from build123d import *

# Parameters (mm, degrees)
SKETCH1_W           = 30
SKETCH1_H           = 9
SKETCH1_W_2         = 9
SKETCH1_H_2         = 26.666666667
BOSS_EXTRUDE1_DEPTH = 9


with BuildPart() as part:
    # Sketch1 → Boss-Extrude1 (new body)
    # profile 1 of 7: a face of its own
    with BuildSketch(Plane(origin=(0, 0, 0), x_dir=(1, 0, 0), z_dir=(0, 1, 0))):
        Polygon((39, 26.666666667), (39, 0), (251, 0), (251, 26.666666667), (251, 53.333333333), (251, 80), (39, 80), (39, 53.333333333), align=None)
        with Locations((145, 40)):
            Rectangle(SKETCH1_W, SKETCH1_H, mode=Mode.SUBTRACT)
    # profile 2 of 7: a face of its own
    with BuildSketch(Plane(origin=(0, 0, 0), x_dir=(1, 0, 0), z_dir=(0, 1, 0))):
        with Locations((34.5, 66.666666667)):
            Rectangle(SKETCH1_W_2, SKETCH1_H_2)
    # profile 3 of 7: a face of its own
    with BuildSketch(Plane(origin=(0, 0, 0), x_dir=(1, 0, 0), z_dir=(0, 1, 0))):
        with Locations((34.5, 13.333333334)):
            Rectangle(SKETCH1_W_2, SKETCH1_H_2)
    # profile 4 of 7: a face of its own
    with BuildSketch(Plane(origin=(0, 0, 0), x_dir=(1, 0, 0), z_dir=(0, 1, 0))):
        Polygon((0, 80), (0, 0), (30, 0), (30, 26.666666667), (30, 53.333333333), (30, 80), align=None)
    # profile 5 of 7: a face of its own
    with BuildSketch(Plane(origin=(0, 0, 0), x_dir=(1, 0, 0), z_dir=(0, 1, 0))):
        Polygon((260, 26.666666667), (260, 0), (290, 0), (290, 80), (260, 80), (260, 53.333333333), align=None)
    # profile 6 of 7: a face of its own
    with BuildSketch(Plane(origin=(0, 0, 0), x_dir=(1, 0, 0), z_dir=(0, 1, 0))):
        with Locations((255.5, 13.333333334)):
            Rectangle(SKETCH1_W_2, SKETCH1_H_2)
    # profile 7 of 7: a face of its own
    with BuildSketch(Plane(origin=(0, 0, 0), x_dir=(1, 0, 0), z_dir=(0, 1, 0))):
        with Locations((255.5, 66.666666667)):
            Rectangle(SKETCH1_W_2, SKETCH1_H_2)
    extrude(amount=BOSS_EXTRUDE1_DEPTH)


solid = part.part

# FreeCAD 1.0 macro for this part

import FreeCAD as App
import Part
import Sketcher
from FreeCAD import Vector

doc = App.newDocument("Part")
body = doc.addObject("PartDesign::Body", "Body")

# Sketch on XZ plane
sketch1 = body.newObject("Sketcher::SketchObject", "Sketch")
sketch1.AttachmentSupport = (doc.getObject("XZ_Plane"), [""])
sketch1.MapMode = "FlatFace"
sketch1.addGeometry(Part.LineSegment(Vector(39, 0, 0), Vector(290, 0, 0)), False)
sketch1.addGeometry(Part.LineSegment(Vector(290, 0, 0), Vector(290, -80, 0)), False)
sketch1.addGeometry(Part.LineSegment(Vector(290, -80, 0), Vector(260, -80, 0)), False)
sketch1.addGeometry(Part.LineSegment(Vector(260, -80, 0), Vector(251, -80, 0)), False)
sketch1.addGeometry(Part.LineSegment(Vector(251, -80, 0), Vector(39, -80, 0)), False)
sketch1.addGeometry(Part.LineSegment(Vector(39, -80, 0), Vector(30, -80, 0)), False)
sketch1.addGeometry(Part.LineSegment(Vector(30, -80, 0), Vector(0, -80, 0)), False)
sketch1.addGeometry(Part.LineSegment(Vector(0, -80, 0), Vector(0, 0, 0)), False)
sketch1.addGeometry(Part.LineSegment(Vector(0, 0, 0), Vector(30, 0, 0)), False)
sketch1.addGeometry(Part.LineSegment(Vector(30, 0, 0), Vector(39, 0, 0)), False)
sketch1.addGeometry(Part.LineSegment(Vector(39, -53, 0), Vector(39, -27, 0)), False)
sketch1.addGeometry(Part.LineSegment(Vector(39, -27, 0), Vector(30, -27, 0)), False)
sketch1.addGeometry(Part.LineSegment(Vector(30, -27, 0), Vector(30, -53, 0)), False)
sketch1.addGeometry(Part.LineSegment(Vector(30, -53, 0), Vector(39, -53, 0)), False)
sketch1.addGeometry(Part.LineSegment(Vector(251, -27, 0), Vector(251, -53, 0)), False)
sketch1.addGeometry(Part.LineSegment(Vector(251, -53, 0), Vector(260, -53, 0)), False)
sketch1.addGeometry(Part.LineSegment(Vector(260, -53, 0), Vector(260, -27, 0)), False)
sketch1.addGeometry(Part.LineSegment(Vector(260, -27, 0), Vector(251, -27, 0)), False)
sketch1.addGeometry(Part.LineSegment(Vector(160, -36, 0), Vector(130, -36, 0)), False)
sketch1.addGeometry(Part.LineSegment(Vector(130, -36, 0), Vector(130, -44, 0)), False)
sketch1.addGeometry(Part.LineSegment(Vector(130, -44, 0), Vector(160, -44, 0)), False)
sketch1.addGeometry(Part.LineSegment(Vector(160, -44, 0), Vector(160, -36, 0)), False)
sketch1.addConstraint(Sketcher.Constraint("Coincident", 0, 2, 1, 1))
sketch1.addConstraint(Sketcher.Constraint("Coincident", 1, 2, 2, 1))
sketch1.addConstraint(Sketcher.Constraint("Coincident", 2, 2, 3, 1))
sketch1.addConstraint(Sketcher.Constraint("Coincident", 3, 2, 4, 1))
sketch1.addConstraint(Sketcher.Constraint("Coincident", 4, 2, 5, 1))
sketch1.addConstraint(Sketcher.Constraint("Coincident", 5, 2, 6, 1))
sketch1.addConstraint(Sketcher.Constraint("Coincident", 6, 2, 7, 1))
sketch1.addConstraint(Sketcher.Constraint("Coincident", 7, 2, 8, 1))
sketch1.addConstraint(Sketcher.Constraint("Coincident", 8, 2, 9, 1))
sketch1.addConstraint(Sketcher.Constraint("Coincident", 9, 2, 0, 1))
sketch1.addConstraint(Sketcher.Constraint("Coincident", 10, 2, 11, 1))
sketch1.addConstraint(Sketcher.Constraint("Coincident", 11, 2, 12, 1))
sketch1.addConstraint(Sketcher.Constraint("Coincident", 12, 2, 13, 1))
sketch1.addConstraint(Sketcher.Constraint("Coincident", 13, 2, 10, 1))
sketch1.addConstraint(Sketcher.Constraint("Coincident", 14, 2, 15, 1))
sketch1.addConstraint(Sketcher.Constraint("Coincident", 15, 2, 16, 1))
sketch1.addConstraint(Sketcher.Constraint("Coincident", 16, 2, 17, 1))
sketch1.addConstraint(Sketcher.Constraint("Coincident", 17, 2, 14, 1))
sketch1.addConstraint(Sketcher.Constraint("Coincident", 18, 2, 19, 1))
sketch1.addConstraint(Sketcher.Constraint("Coincident", 19, 2, 20, 1))
sketch1.addConstraint(Sketcher.Constraint("Coincident", 20, 2, 21, 1))
sketch1.addConstraint(Sketcher.Constraint("Coincident", 21, 2, 18, 1))
sketch1.addConstraint(Sketcher.Constraint("Horizontal", 0))
sketch1.addConstraint(Sketcher.Constraint("Vertical", 1))
sketch1.addConstraint(Sketcher.Constraint("Horizontal", 2))
sketch1.addConstraint(Sketcher.Constraint("Horizontal", 3))
sketch1.addConstraint(Sketcher.Constraint("Horizontal", 4))
sketch1.addConstraint(Sketcher.Constraint("Horizontal", 5))
sketch1.addConstraint(Sketcher.Constraint("Horizontal", 6))
sketch1.addConstraint(Sketcher.Constraint("Vertical", 7))
sketch1.addConstraint(Sketcher.Constraint("Horizontal", 8))
sketch1.addConstraint(Sketcher.Constraint("Horizontal", 9))
sketch1.addConstraint(Sketcher.Constraint("Vertical", 10))
sketch1.addConstraint(Sketcher.Constraint("Horizontal", 11))
sketch1.addConstraint(Sketcher.Constraint("Vertical", 12))
sketch1.addConstraint(Sketcher.Constraint("Horizontal", 13))
sketch1.addConstraint(Sketcher.Constraint("Vertical", 14))
sketch1.addConstraint(Sketcher.Constraint("Horizontal", 15))
sketch1.addConstraint(Sketcher.Constraint("Vertical", 16))
sketch1.addConstraint(Sketcher.Constraint("Horizontal", 17))
sketch1.addConstraint(Sketcher.Constraint("Horizontal", 18))
sketch1.addConstraint(Sketcher.Constraint("Vertical", 19))
sketch1.addConstraint(Sketcher.Constraint("Horizontal", 20))
sketch1.addConstraint(Sketcher.Constraint("Vertical", 21))
sketch1.addConstraint(Sketcher.Constraint("Coincident", 7, 2, -1, 1))
sketch1.addConstraint(Sketcher.Constraint("Horizontal", 13, 2, 14, 2))
sketch1.addConstraint(Sketcher.Constraint("Horizontal", 11, 2, 16, 2))
sketch1.addConstraint(Sketcher.Constraint("Vertical", 5, 2, 8, 2))
sketch1.addConstraint(Sketcher.Constraint("Vertical", 4, 2, 9, 2))
sketch1.addConstraint(Sketcher.Constraint("Vertical", 9, 2, 10, 2))
sketch1.addConstraint(Sketcher.Constraint("Vertical", 8, 2, 11, 2))
sketch1.addConstraint(Sketcher.Constraint("Vertical", 3, 2, 14, 2))
sketch1.addConstraint(Sketcher.Constraint("Vertical", 2, 2, 15, 2))
sketch1.addConstraint(Sketcher.Constraint("Equal", 3, 5))
sketch1.addConstraint(Sketcher.Constraint("Equal", 2, 6))
sketch1.addConstraint(Sketcher.Constraint("Equal", 8, 18))
sketch1.addConstraint(Sketcher.Constraint("Equal", 17, 19))
sketch1.addConstraint(Sketcher.Constraint("DistanceX", 0, 1, 0, 2, 251.0))
sketch1.addConstraint(Sketcher.Constraint("DistanceX", 2, 2, 2, 1, 30.0))
sketch1.addConstraint(Sketcher.Constraint("DistanceX", 3, 2, 3, 1, 9.0))
sketch1.addConstraint(Sketcher.Constraint("DistanceY", 1, 2, 1, 1, 80.0))
sketch1.addConstraint(Sketcher.Constraint("DistanceX", -1, 1, 18, 2, 130.0))
sketch1.addConstraint(Sketcher.Constraint("DistanceY", 18, 2, -1, 1, 35.5))
sketch1.addConstraint(Sketcher.Constraint("DistanceY", 10, 1, 10, 2, 26.666667))
sketch1.addConstraint(Sketcher.Constraint("DistanceY", 10, 2, -1, 1, 26.666667))
pad1 = body.newObject("PartDesign::Pad", "Pad")
pad1.Profile = sketch1
pad1.Length = 9
pad1.Reversed = True

doc.recompute()
